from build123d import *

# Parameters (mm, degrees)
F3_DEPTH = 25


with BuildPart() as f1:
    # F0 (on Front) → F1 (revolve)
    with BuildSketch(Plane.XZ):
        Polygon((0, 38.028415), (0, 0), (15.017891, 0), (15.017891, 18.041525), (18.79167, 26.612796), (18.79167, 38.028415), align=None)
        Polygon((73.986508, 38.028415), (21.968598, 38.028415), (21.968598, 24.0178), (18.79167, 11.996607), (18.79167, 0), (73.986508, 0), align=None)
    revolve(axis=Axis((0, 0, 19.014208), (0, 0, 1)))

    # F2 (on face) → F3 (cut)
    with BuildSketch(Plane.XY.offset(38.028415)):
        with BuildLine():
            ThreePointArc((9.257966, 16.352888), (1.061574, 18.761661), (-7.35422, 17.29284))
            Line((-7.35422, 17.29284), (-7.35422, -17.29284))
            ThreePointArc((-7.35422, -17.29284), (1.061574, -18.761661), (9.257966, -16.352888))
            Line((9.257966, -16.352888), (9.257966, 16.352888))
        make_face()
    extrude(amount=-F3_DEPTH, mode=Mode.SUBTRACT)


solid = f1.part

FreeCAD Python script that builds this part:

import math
import FreeCAD as App
import Part
import Sketcher

V = App.Vector
Q = App.Units.Quantity


def add_polygon(sketch, points):
    """Adds a closed chain of lines whose ends are joined by coincident constraints."""
    first, n = sketch.GeometryCount, len(points)
    for a, b in zip(points, points[1:] + points[:1]):
        sketch.addGeometry(Part.LineSegment(App.Vector(*a, 0), App.Vector(*b, 0)), False)
    for i in range(n):
        sketch.addConstraint(Sketcher.Constraint("Coincident", first + i, 2, first + (i + 1) % n, 1))

doc = App.newDocument("Part")
body = doc.addObject("PartDesign::Body", "Body")
body.AllowCompound = True

# Sketch on XZ plane
sketch1 = body.newObject("Sketcher::SketchObject", "Sketch")
sketch1.AttachmentSupport = (doc.getObject("XZ_Plane"), [""])
sketch1.MapMode = "FlatFace"
add_polygon(sketch1, [(0, 38), (0, 0), (15, 0), (15, 18), (19, 27), (19, 38)])  # lines 0-5
add_polygon(sketch1, [(74, 38), (22, 38), (22, 24), (19, 12), (19, 0), (74, 0)])  # lines 6-11
sketch1.addConstraint([
    Sketcher.Constraint("Vertical", 0),
    Sketcher.Constraint("Horizontal", 1),
    Sketcher.Constraint("Vertical", 2),
    Sketcher.Constraint("Vertical", 4),
    Sketcher.Constraint("Horizontal", 5),
    Sketcher.Constraint("Horizontal", 6),
    Sketcher.Constraint("Vertical", 7),
    Sketcher.Constraint("Vertical", 9),
    Sketcher.Constraint("Horizontal", 10),
    Sketcher.Constraint("Vertical", 11),
    Sketcher.Constraint("Coincident", 0, 2, -1, 1),
    Sketcher.Constraint("PointOnObject", 9, 2, -1),
    Sketcher.Constraint("Horizontal", 5, 2, 6, 2),
    Sketcher.Constraint("Vertical", 4, 2, 8, 2),
    Sketcher.Constraint("DistanceX", 1, 1, 1, 2, Q("15.017891 mm")),
    Sketcher.Constraint("DistanceX", 5, 2, 5, 1, Q("18.79167 mm")),
    Sketcher.Constraint("DistanceX", 6, 2, 6, 1, Q("52.01791 mm")),
    Sketcher.Constraint("DistanceX", 10, 1, 10, 2, Q("55.194838 mm")),
    Sketcher.Constraint("DistanceY", 4, 1, 4, 2, Q("11.415619 mm")),
    Sketcher.Constraint("DistanceY", -1, 1, 7, 2, Q("24.0178 mm")),
    Sketcher.Constraint("Distance", 3, Q("9.36526 mm")),
    Sketcher.Constraint("DistanceY", 0, 2, 0, 1, Q("38.028415 mm")),
    Sketcher.Constraint("DistanceY", 9, 2, 9, 1, Q("11.996607 mm")),
])
revolution = body.newObject("PartDesign::Revolution", "Revolution")
revolution.Profile = sketch1
revolution.ReferenceAxis = (sketch1, ["V_Axis"])
revolution.Angle = 360

# Sketch on XY plane
sketch2 = body.newObject("Sketcher::SketchObject", "Sketch001")
sketch2.AttachmentSupport = (doc.getObject("XY_Plane"), [""])
sketch2.MapMode = "FlatFace"
sketch2.AttachmentOffset = App.Placement(V(0, 0, 38.028415), App.Rotation())
sketch2.addGeometry([
    Part.ArcOfCircle(Part.Circle(V(0, 0, 0), V(0, 0, 1), 19), math.radians(60), math.radians(113)),
    Part.LineSegment(V(-7, 17, 0), V(-7, -17, 0)),
    Part.ArcOfCircle(Part.Circle(V(0, 0, 0), V(0, 0, 1), 19), math.radians(-113), math.radians(-60)),
    Part.LineSegment(V(9, -16, 0), V(9, 16, 0)),
], False)
sketch2.addConstraint([
    Sketcher.Constraint("Coincident", 0, 2, 1, 1),
    Sketcher.Constraint("Coincident", 1, 2, 2, 1),
    Sketcher.Constraint("Coincident", 2, 2, 3, 1),
    Sketcher.Constraint("Coincident", 3, 2, 0, 1),
    Sketcher.Constraint("Vertical", 1),
    Sketcher.Constraint("Vertical", 3),
    Sketcher.Constraint("Coincident", 0, 3, -1, 1),
    Sketcher.Constraint("Coincident", 2, 3, -1, 1),
    Sketcher.Constraint("Equal", 0, 2),
    Sketcher.Constraint("Radius", 0, Q("18.791673 mm")),
    Sketcher.Constraint("DistanceY", 1, 2, 1, 1, Q("34.58568 mm")),
    Sketcher.Constraint("DistanceY", 3, 1, 3, 2, Q("32.705776 mm")),
])
pocket1 = body.newObject("PartDesign::Pocket", "Pocket")
pocket1.Profile = sketch2
pocket1.Length = 25

doc.recompute()
